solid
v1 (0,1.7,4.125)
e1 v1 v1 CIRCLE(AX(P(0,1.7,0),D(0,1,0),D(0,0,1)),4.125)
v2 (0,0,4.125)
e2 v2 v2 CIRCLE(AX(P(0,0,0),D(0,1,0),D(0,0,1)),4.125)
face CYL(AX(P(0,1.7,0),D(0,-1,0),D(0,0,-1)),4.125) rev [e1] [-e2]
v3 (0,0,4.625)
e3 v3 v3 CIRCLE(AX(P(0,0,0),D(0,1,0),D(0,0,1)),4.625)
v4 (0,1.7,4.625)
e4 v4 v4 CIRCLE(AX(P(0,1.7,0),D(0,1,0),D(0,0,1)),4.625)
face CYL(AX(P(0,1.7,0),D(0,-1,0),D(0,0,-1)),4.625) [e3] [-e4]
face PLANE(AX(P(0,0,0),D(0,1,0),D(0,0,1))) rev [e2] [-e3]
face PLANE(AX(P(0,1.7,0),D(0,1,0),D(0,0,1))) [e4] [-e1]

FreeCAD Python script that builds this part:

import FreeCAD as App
import Part
import Sketcher

V = App.Vector

doc = App.newDocument("Part")
body = doc.addObject("PartDesign::Body", "Body")

# Sketch on XZ plane
sketch1 = doc.addObject("Sketcher::SketchObject", "Sketch")
body.addObject(sketch1)
sketch1.AttachmentSupport = (doc.XZ_Plane, [""])
sketch1.MapMode = "FlatFace"
sketch1.addGeometry(Part.Circle(V(0, 0, 0), V(0, 0, 1), 4.6), False)
sketch1.addGeometry(Part.Circle(V(0, 0, 0), V(0, 0, 1), 4.1), False)
sketch1.addConstraint(Sketcher.Constraint("Coincident", 0, 3, -1, 1))
sketch1.addConstraint(Sketcher.Constraint("Coincident", 1, 3, -1, 1))
sketch1.addConstraint(Sketcher.Constraint("Diameter", 0, 9.25))
sketch1.addConstraint(Sketcher.Constraint("Diameter", 1, 8.25))
pad1 = doc.addObject("PartDesign::Pad", "Pad")
body.addObject(pad1)
pad1.Profile = sketch1
pad1.Length = 1.7
pad1.Reversed = True

doc.recompute()
